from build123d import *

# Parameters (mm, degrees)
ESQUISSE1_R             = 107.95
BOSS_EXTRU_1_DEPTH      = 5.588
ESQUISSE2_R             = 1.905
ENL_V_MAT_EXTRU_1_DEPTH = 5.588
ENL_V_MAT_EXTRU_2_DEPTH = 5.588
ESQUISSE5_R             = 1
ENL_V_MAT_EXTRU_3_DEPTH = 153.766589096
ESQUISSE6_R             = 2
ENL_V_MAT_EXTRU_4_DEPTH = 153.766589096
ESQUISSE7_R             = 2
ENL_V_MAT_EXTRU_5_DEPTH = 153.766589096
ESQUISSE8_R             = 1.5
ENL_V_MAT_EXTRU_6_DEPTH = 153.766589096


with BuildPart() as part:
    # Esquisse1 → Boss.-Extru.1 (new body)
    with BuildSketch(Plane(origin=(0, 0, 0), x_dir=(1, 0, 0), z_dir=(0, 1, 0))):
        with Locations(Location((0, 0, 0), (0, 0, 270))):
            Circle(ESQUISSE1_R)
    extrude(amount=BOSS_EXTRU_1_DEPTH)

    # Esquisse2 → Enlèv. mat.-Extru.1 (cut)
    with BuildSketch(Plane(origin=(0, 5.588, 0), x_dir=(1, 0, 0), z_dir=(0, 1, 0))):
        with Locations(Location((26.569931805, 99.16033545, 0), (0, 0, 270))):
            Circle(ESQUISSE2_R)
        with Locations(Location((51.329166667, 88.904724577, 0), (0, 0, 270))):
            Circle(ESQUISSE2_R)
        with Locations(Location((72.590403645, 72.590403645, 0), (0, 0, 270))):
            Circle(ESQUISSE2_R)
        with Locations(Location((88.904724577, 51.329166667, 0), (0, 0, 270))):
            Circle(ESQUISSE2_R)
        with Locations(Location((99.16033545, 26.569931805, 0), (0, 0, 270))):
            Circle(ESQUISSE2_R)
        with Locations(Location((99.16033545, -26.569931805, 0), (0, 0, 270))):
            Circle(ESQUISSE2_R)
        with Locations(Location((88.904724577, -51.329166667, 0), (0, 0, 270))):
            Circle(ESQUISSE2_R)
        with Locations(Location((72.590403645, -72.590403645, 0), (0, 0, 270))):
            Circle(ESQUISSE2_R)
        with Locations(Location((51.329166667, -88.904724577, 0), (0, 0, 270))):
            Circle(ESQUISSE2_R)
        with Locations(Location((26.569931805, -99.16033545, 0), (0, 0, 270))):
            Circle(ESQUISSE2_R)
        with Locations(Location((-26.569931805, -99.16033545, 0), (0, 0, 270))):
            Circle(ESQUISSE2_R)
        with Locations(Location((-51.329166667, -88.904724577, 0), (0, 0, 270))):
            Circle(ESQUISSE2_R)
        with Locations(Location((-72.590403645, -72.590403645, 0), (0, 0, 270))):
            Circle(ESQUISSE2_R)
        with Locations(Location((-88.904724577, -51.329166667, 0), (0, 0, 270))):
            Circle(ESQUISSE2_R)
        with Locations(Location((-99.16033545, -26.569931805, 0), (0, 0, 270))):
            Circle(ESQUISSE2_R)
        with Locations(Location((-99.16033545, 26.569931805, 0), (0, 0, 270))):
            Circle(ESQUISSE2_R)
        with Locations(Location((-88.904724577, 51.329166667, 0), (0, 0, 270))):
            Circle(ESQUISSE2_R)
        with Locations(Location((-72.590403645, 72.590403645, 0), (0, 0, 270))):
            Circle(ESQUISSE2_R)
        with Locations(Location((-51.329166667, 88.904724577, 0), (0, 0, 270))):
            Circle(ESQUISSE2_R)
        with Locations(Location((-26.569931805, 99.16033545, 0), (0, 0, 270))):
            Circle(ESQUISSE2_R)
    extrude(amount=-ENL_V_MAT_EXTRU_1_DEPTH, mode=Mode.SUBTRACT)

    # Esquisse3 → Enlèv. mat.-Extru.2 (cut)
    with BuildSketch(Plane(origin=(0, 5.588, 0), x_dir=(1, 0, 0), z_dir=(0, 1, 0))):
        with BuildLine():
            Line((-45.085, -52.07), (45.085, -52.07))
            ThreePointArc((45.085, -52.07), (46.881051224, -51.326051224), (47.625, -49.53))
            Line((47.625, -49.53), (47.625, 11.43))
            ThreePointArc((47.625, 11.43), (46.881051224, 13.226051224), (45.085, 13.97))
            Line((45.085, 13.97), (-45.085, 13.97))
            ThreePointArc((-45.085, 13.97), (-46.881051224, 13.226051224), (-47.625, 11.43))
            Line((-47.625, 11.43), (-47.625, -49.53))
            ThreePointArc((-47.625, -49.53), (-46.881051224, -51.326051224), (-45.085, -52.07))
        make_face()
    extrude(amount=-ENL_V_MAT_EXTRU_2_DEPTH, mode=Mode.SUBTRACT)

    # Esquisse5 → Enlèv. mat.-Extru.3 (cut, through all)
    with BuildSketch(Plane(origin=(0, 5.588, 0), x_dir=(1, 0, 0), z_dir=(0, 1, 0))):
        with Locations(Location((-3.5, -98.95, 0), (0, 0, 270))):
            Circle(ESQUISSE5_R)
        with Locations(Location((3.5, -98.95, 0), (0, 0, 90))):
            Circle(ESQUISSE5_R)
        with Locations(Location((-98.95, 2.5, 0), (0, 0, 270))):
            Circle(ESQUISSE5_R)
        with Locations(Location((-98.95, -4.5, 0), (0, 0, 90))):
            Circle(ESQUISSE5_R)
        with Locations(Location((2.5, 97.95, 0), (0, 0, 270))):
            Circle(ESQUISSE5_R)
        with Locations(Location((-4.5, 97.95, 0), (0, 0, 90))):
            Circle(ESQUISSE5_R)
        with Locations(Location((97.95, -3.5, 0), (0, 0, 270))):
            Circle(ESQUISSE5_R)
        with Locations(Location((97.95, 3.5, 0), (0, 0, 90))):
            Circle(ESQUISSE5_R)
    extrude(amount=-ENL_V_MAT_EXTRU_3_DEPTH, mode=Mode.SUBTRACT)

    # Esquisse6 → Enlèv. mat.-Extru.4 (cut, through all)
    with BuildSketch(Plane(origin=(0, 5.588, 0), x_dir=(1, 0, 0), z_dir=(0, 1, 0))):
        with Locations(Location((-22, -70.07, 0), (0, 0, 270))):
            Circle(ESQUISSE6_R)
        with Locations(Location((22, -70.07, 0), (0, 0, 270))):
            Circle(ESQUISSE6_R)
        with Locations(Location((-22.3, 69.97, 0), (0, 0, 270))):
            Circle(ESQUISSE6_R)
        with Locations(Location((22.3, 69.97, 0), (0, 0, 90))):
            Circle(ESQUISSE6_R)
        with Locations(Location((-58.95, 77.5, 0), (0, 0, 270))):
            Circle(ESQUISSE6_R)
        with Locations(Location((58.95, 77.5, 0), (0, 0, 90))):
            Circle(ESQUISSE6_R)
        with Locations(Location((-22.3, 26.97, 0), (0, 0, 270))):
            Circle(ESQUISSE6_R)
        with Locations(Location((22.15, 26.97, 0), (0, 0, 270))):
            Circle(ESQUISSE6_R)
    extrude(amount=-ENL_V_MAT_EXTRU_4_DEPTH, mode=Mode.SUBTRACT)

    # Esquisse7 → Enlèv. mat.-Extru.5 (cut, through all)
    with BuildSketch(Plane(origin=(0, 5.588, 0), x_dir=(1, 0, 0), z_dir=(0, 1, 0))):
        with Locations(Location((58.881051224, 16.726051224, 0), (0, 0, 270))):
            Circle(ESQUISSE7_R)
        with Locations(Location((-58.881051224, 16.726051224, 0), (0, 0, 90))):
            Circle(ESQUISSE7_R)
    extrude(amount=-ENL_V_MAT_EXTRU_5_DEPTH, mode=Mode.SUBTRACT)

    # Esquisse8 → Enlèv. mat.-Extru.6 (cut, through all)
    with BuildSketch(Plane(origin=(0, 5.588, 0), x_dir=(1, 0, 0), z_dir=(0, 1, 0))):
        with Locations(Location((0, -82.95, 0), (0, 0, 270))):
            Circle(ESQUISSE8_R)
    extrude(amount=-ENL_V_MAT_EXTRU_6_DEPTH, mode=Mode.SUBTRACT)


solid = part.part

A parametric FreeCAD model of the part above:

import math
import FreeCAD as App
import Part
import Sketcher
from FreeCAD import Vector
Q = App.Units.Quantity

doc = App.newDocument("Part")
body = doc.addObject("PartDesign::Body", "Body")

# Sketch on XZ plane
sketch1 = doc.addObject("Sketcher::SketchObject", "Sketch")
body.addObject(sketch1)
sketch1.AttachmentSupport = (doc.XZ_Plane, [""])
sketch1.MapMode = "FlatFace"
sketch1.addGeometry(Part.Circle(Vector(0, 0, 0), Vector(0, 0, 1), 108), False)
sketch1.addConstraint([
    Sketcher.Constraint("Coincident", 0, 3, -1, 1),
    Sketcher.Constraint("Diameter", 0, Q("8.5 in")),
])
pad1 = doc.addObject("PartDesign::Pad", "Pad")
body.addObject(pad1)
pad1.Profile = sketch1
pad1.Length = Q("0.22 in")
pad1.Reversed = True

# Sketch on XZ plane
sketch2 = doc.addObject("Sketcher::SketchObject", "Sketch001")
body.addObject(sketch2)
sketch2.AttachmentSupport = (doc.XZ_Plane, [""])
sketch2.MapMode = "FlatFace"
sketch2.AttachmentOffset = App.Placement(Vector(0, 0, -0.22 * 25.4), App.Rotation())
sketch2.addGeometry([
    Part.Circle(Vector(26.6, -99.2, 0), Vector(0, 0, 1), 1.9),  # 0
    Part.Circle(Vector(51.3, -88.9, 0), Vector(0, 0, 1), 1.9),  # 1
    Part.Circle(Vector(72.6, -72.6, 0), Vector(0, 0, 1), 1.9),  # 2
    Part.Circle(Vector(88.9, -51.3, 0), Vector(0, 0, 1), 1.9),  # 3
    Part.Circle(Vector(99.2, -26.6, 0), Vector(0, 0, 1), 1.9),  # 4
    Part.Circle(Vector(99.2, 26.6, 0), Vector(0, 0, 1), 1.9),  # 5
    Part.Circle(Vector(88.9, 51.3, 0), Vector(0, 0, 1), 1.9),  # 6
    Part.Circle(Vector(72.6, 72.6, 0), Vector(0, 0, 1), 1.9),  # 7
    Part.Circle(Vector(51.3, 88.9, 0), Vector(0, 0, 1), 1.9),  # 8
    Part.Circle(Vector(26.6, 99.2, 0), Vector(0, 0, 1), 1.9),  # 9
    Part.Circle(Vector(-26.6, 99.2, 0), Vector(0, 0, 1), 1.9),  # 10
    Part.Circle(Vector(-51.3, 88.9, 0), Vector(0, 0, 1), 1.9),  # 11
    Part.Circle(Vector(-72.6, 72.6, 0), Vector(0, 0, 1), 1.9),  # 12
    Part.Circle(Vector(-88.9, 51.3, 0), Vector(0, 0, 1), 1.9),  # 13
    Part.Circle(Vector(-99.2, 26.6, 0), Vector(0, 0, 1), 1.9),  # 14
    Part.Circle(Vector(-99.2, -26.6, 0), Vector(0, 0, 1), 1.9),  # 15
    Part.Circle(Vector(-88.9, -51.3, 0), Vector(0, 0, 1), 1.9),  # 16
    Part.Circle(Vector(-72.6, -72.6, 0), Vector(0, 0, 1), 1.9),  # 17
    Part.Circle(Vector(-51.3, -88.9, 0), Vector(0, 0, 1), 1.9),  # 18
    Part.Circle(Vector(-26.6, -99.2, 0), Vector(0, 0, 1), 1.9),  # 19
], False)
sketch2.addConstraint([
    Sketcher.Constraint("Equal", 0, 1),
    Sketcher.Constraint("Equal", 1, 2),
    Sketcher.Constraint("Equal", 2, 3),
    Sketcher.Constraint("Equal", 3, 4),
    Sketcher.Constraint("Equal", 4, 5),
    Sketcher.Constraint("Equal", 5, 6),
    Sketcher.Constraint("Equal", 6, 7),
    Sketcher.Constraint("Equal", 7, 8),
    Sketcher.Constraint("Equal", 8, 9),
    Sketcher.Constraint("Equal", 9, 10),
    Sketcher.Constraint("Equal", 10, 11),
    Sketcher.Constraint("Equal", 11, 12),
    Sketcher.Constraint("Equal", 12, 13),
    Sketcher.Constraint("Equal", 13, 14),
    Sketcher.Constraint("Equal", 14, 15),
    Sketcher.Constraint("Equal", 15, 16),
    Sketcher.Constraint("Equal", 16, 17),
    Sketcher.Constraint("Equal", 17, 18),
    Sketcher.Constraint("Equal", 18, 19),
    Sketcher.Constraint("Symmetric", 0, 3, 10, 3, -1, 1),
    Sketcher.Constraint("Symmetric", 1, 3, 11, 3, -1, 1),
    Sketcher.Constraint("Symmetric", 2, 3, 12, 3, -1, 1),
    Sketcher.Constraint("Symmetric", 3, 3, 13, 3, -1, 1),
    Sketcher.Constraint("Symmetric", 4, 3, 14, 3, -1, 1),
    Sketcher.Constraint("Symmetric", 5, 3, 15, 3, -1, 1),
    Sketcher.Constraint("Symmetric", 6, 3, 16, 3, -1, 1),
    Sketcher.Constraint("Symmetric", 7, 3, 17, 3, -1, 1),
    Sketcher.Constraint("Symmetric", 8, 3, 18, 3, -1, 1),
    Sketcher.Constraint("Symmetric", 9, 3, 19, 3, -1, 1),
    Sketcher.Constraint("Symmetric", 9, 3, 10, 3, -2),
    Sketcher.Constraint("Symmetric", 8, 3, 11, 3, -2),
    Sketcher.Constraint("Symmetric", 7, 3, 12, 3, -2),
    Sketcher.Constraint("Symmetric", 6, 3, 13, 3, -2),
    Sketcher.Constraint("Symmetric", 5, 3, 14, 3, -2),
    Sketcher.Constraint("Diameter", 0, Q("0.15 in")),
    Sketcher.Constraint("DistanceY", 3, 3, 5, 3, 77.899098),
    Sketcher.Constraint("DistanceX", 10, 3, 8, 3, 77.899098),
    Sketcher.Constraint("DistanceX", -1, 1, 0, 3, 26.569932),
    Sketcher.Constraint("DistanceY", 4, 3, -1, 1, 26.569932),
    Sketcher.Constraint("DistanceY", 0, 3, 1, 3, 10.255611),
    Sketcher.Constraint("DistanceY", 1, 3, 2, 3, 16.314321),
    Sketcher.Constraint("DistanceX", 0, 3, 2, 3, 46.020472),
    Sketcher.Constraint("DistanceX", 2, 3, 3, 3, 16.314321),
    Sketcher.Constraint("DistanceY", 0, 3, 3, 3, 47.831169),
    Sketcher.Constraint("DistanceX", 3, 3, 4, 3, 10.255611),
])
pocket1 = doc.addObject("PartDesign::Pocket", "Pocket")
body.addObject(pocket1)
pocket1.Profile = sketch2
pocket1.Length = Q("0.22 in")
pocket1.Reversed = True

# Sketch on XZ plane
sketch3 = doc.addObject("Sketcher::SketchObject", "Sketch002")
body.addObject(sketch3)
sketch3.AttachmentSupport = (doc.XZ_Plane, [""])
sketch3.MapMode = "FlatFace"
sketch3.AttachmentOffset = App.Placement(Vector(0, 0, -0.22 * 25.4), App.Rotation())
sketch3.addGeometry([
    Part.LineSegment(Vector(-45.1, 52.1, 0), Vector(45.1, 52.1, 0)),  # 0
    Part.ArcOfCircle(Part.Circle(Vector(45.1, 49.5, 0), Vector(0, 0, 1), 2.5), math.radians(0), math.radians(90)),  # 1
    Part.LineSegment(Vector(47.6, 49.5, 0), Vector(47.6, -11.4, 0)),  # 2
    Part.ArcOfCircle(Part.Circle(Vector(45.1, -11.4, 0), Vector(0, 0, 1), 2.5), math.radians(-90), math.radians(0)),  # 3
    Part.LineSegment(Vector(45.1, -14, 0), Vector(-45.1, -14, 0)),  # 4
    Part.ArcOfCircle(Part.Circle(Vector(-45.1, -11.4, 0), Vector(0, 0, 1), 2.5), math.radians(-180), math.radians(-90)),  # 5
    Part.LineSegment(Vector(-47.6, -11.4, 0), Vector(-47.6, 49.5, 0)),  # 6
    Part.ArcOfCircle(Part.Circle(Vector(-45.1, 49.5, 0), Vector(0, 0, 1), 2.5), math.radians(90), math.radians(180)),  # 7
], False)
sketch3.addConstraint([
    Sketcher.Constraint("Tangent", 0, 2, 1, 2),
    Sketcher.Constraint("Tangent", 1, 1, 2, 1),
    Sketcher.Constraint("Tangent", 2, 2, 3, 2),
    Sketcher.Constraint("Tangent", 3, 1, 4, 1),
    Sketcher.Constraint("Tangent", 4, 2, 5, 2),
    Sketcher.Constraint("Tangent", 5, 1, 6, 1),
    Sketcher.Constraint("Tangent", 6, 2, 7, 2),
    Sketcher.Constraint("Tangent", 7, 1, 0, 1),
    Sketcher.Constraint("Horizontal", 0),
    Sketcher.Constraint("Vertical", 2),
    Sketcher.Constraint("Horizontal", 4),
    Sketcher.Constraint("Vertical", 6),
    Sketcher.Constraint("Equal", 1, 3),
    Sketcher.Constraint("Equal", 3, 5),
    Sketcher.Constraint("Equal", 5, 7),
    Sketcher.Constraint("Radius", 1, Q("0.1 in")),
    Sketcher.Constraint("DistanceY", 2, 2, 2, 1, Q("2.4 in")),
    Sketcher.Constraint("DistanceX", 0, 1, 0, 2, Q("3.55 in")),
    Sketcher.Constraint("DistanceY", -1, 1, 1, 3, Q("1.95 in")),
    Sketcher.Constraint("DistanceX", -1, 1, 1, 3, Q("1.775 in")),
])
pocket2 = doc.addObject("PartDesign::Pocket", "Pocket001")
body.addObject(pocket2)
pocket2.Profile = sketch3
pocket2.Length = Q("0.22 in")
pocket2.Reversed = True

# Sketch on XZ plane
sketch4 = doc.addObject("Sketcher::SketchObject", "Sketch003")
body.addObject(sketch4)
sketch4.AttachmentSupport = (doc.XZ_Plane, [""])
sketch4.MapMode = "FlatFace"
sketch4.AttachmentOffset = App.Placement(Vector(0, 0, -0.22 * 25.4), App.Rotation())
sketch4.addGeometry([
    Part.Circle(Vector(-3.5, 99, 0), Vector(0, 0, 1), 1),  # 0
    Part.Circle(Vector(3.5, 99, 0), Vector(0, 0, 1), 1),  # 1
    Part.Circle(Vector(-99, -2.5, 0), Vector(0, 0, 1), 1),  # 2
    Part.Circle(Vector(-99, 4.5, 0), Vector(0, 0, 1), 1),  # 3
    Part.Circle(Vector(2.5, -98, 0), Vector(0, 0, 1), 1),  # 4
    Part.Circle(Vector(-4.5, -98, 0), Vector(0, 0, 1), 1),  # 5
    Part.Circle(Vector(98, 3.5, 0), Vector(0, 0, 1), 1),  # 6
    Part.Circle(Vector(98, -3.5, 0), Vector(0, 0, 1), 1),  # 7
], False)
sketch4.addConstraint([
    Sketcher.Constraint("Equal", 0, 1),
    Sketcher.Constraint("Equal", 1, 2),
    Sketcher.Constraint("Equal", 2, 3),
    Sketcher.Constraint("Equal", 3, 4),
    Sketcher.Constraint("Equal", 4, 5),
    Sketcher.Constraint("Equal", 5, 6),
    Sketcher.Constraint("Equal", 6, 7),
    Sketcher.Constraint("Symmetric", 0, 3, 1, 3, -2),
    Sketcher.Constraint("Symmetric", 6, 3, 7, 3, -1),
    Sketcher.Constraint("Horizontal", 4, 3, 5, 3),
    Sketcher.Constraint("Vertical", 2, 3, 3, 3),
    Sketcher.Constraint("Diameter", 0, 2.0),
    Sketcher.Constraint("DistanceX", 0, 3, -1, 1, 3.5),
    Sketcher.Constraint("DistanceY", -1, 1, 0, 3, 98.95),
    Sketcher.Constraint("DistanceX", 2, 3, -1, 1, 98.95),
    Sketcher.Constraint("DistanceY", 2, 3, -1, 1, 2.5),
    Sketcher.Constraint("DistanceY", -1, 1, 3, 3, 4.5),
    Sketcher.Constraint("DistanceX", -1, 1, 4, 3, 2.5),
    Sketcher.Constraint("DistanceY", 4, 3, -1, 1, 97.95),
    Sketcher.Constraint("DistanceX", 5, 3, -1, 1, 4.5),
    Sketcher.Constraint("DistanceX", -1, 1, 6, 3, 97.95),
    Sketcher.Constraint("DistanceY", -1, 1, 6, 3, 3.5),
])
pocket3 = doc.addObject("PartDesign::Pocket", "Pocket002")
body.addObject(pocket3)
pocket3.Profile = sketch4
pocket3.Type = "ThroughAll"
pocket3.Reversed = True

# Sketch on XZ plane
sketch5 = doc.addObject("Sketcher::SketchObject", "Sketch004")
body.addObject(sketch5)
sketch5.AttachmentSupport = (doc.XZ_Plane, [""])
sketch5.MapMode = "FlatFace"
sketch5.AttachmentOffset = App.Placement(Vector(0, 0, -0.22 * 25.4), App.Rotation())
sketch5.addGeometry([
    Part.Circle(Vector(-22, 70.1, 0), Vector(0, 0, 1), 2),  # 0
    Part.Circle(Vector(22, 70.1, 0), Vector(0, 0, 1), 2),  # 1
    Part.Circle(Vector(-22.3, -70, 0), Vector(0, 0, 1), 2),  # 2
    Part.Circle(Vector(22.3, -70, 0), Vector(0, 0, 1), 2),  # 3
    Part.Circle(Vector(-59, -77.5, 0), Vector(0, 0, 1), 2),  # 4
    Part.Circle(Vector(59, -77.5, 0), Vector(0, 0, 1), 2),  # 5
    Part.Circle(Vector(-22.3, -27, 0), Vector(0, 0, 1), 2),  # 6
    Part.Circle(Vector(22.1, -27, 0), Vector(0, 0, 1), 2),  # 7
], False)
sketch5.addConstraint([
    Sketcher.Constraint("Equal", 0, 1),
    Sketcher.Constraint("Equal", 1, 2),
    Sketcher.Constraint("Equal", 2, 3),
    Sketcher.Constraint("Equal", 3, 4),
    Sketcher.Constraint("Equal", 4, 5),
    Sketcher.Constraint("Equal", 5, 6),
    Sketcher.Constraint("Equal", 6, 7),
    Sketcher.Constraint("Symmetric", 0, 3, 1, 3, -2),
    Sketcher.Constraint("Symmetric", 2, 3, 3, 3, -2),
    Sketcher.Constraint("Symmetric", 4, 3, 5, 3, -2),
    Sketcher.Constraint("Horizontal", 6, 3, 7, 3),
    Sketcher.Constraint("Vertical", 2, 3, 6, 3),
    Sketcher.Constraint("Diameter", 0, 4.0),
    Sketcher.Constraint("DistanceX", 6, 3, 7, 3, Q("1.75 in")),
    Sketcher.Constraint("DistanceX", 0, 3, -1, 1, 22.0),
    Sketcher.Constraint("DistanceY", -1, 1, 0, 3, 70.07),
    Sketcher.Constraint("DistanceX", 2, 3, -1, 1, 22.3),
    Sketcher.Constraint("DistanceY", 2, 3, -1, 1, 69.97),
    Sketcher.Constraint("DistanceX", 4, 3, -1, 1, 58.95),
    Sketcher.Constraint("DistanceY", 4, 3, -1, 1, 77.5),
    Sketcher.Constraint("DistanceY", 6, 3, -1, 1, 26.97),
])
pocket4 = doc.addObject("PartDesign::Pocket", "Pocket003")
body.addObject(pocket4)
pocket4.Profile = sketch5
pocket4.Type = "ThroughAll"
pocket4.Reversed = True

# Sketch on XZ plane
sketch6 = doc.addObject("Sketcher::SketchObject", "Sketch005")
body.addObject(sketch6)
sketch6.AttachmentSupport = (doc.XZ_Plane, [""])
sketch6.MapMode = "FlatFace"
sketch6.AttachmentOffset = App.Placement(Vector(0, 0, -0.22 * 25.4), App.Rotation())
sketch6.addGeometry([
    Part.Circle(Vector(58.9, -16.7, 0), Vector(0, 0, 1), 2),
    Part.Circle(Vector(-58.9, -16.7, 0), Vector(0, 0, 1), 2),
], False)
sketch6.addConstraint([
    Sketcher.Constraint("Equal", 0, 1),
    Sketcher.Constraint("Symmetric", 0, 3, 1, 3, -2),
    Sketcher.Constraint("Diameter", 0, 4.0),
    Sketcher.Constraint("DistanceX", -1, 1, 0, 3, 58.881051),
    Sketcher.Constraint("DistanceY", 0, 3, -1, 1, 16.726051),
])
pocket5 = doc.addObject("PartDesign::Pocket", "Pocket004")
body.addObject(pocket5)
pocket5.Profile = sketch6
pocket5.Type = "ThroughAll"
pocket5.Reversed = True

# Sketch on XZ plane
sketch7 = doc.addObject("Sketcher::SketchObject", "Sketch006")
body.addObject(sketch7)
sketch7.AttachmentSupport = (doc.XZ_Plane, [""])
sketch7.MapMode = "FlatFace"
sketch7.AttachmentOffset = App.Placement(Vector(0, 0, -0.22 * 25.4), App.Rotation())
sketch7.addGeometry(Part.Circle(Vector(0, 83, 0), Vector(0, 0, 1), 1.5), False)
sketch7.addConstraint([
    Sketcher.Constraint("PointOnObject", 0, 3, -2),
    Sketcher.Constraint("Diameter", 0, 3.0),
    Sketcher.Constraint("DistanceY", -1, 1, 0, 3, 82.95),
])
pocket6 = doc.addObject("PartDesign::Pocket", "Pocket005")
body.addObject(pocket6)
pocket6.Profile = sketch7
pocket6.Type = "ThroughAll"
pocket6.Reversed = True

doc.recompute()
